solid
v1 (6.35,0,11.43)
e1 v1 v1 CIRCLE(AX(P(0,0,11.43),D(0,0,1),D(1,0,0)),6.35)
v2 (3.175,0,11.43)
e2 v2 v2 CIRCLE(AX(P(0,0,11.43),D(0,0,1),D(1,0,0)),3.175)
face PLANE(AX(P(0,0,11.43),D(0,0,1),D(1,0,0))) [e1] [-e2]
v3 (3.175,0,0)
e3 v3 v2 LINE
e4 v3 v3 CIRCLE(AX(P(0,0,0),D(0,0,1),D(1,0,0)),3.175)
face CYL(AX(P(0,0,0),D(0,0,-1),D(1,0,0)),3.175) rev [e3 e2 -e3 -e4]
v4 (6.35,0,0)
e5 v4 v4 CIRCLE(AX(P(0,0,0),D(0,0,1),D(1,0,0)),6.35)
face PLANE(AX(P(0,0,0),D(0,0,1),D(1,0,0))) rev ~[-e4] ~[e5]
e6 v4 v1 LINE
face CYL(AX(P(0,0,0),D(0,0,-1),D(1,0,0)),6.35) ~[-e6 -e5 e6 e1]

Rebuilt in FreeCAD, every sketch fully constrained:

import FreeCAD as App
import Part
import Sketcher

V = App.Vector
Q = App.Units.Quantity

doc = App.newDocument("Part")
params = doc.addObject("Spreadsheet::Sheet", "Params")
for row, (alias, value) in enumerate([
    ("sketch1_diameter", "0.5 in"),
    ("sketch1_diameter2", "0.25 in"),
    ("pad1_length", "0.45 in"),
], start=1):
    params.set(f"A{row}", alias)
    params.set(f"B{row}", "=" + value)
    params.setAlias(f"B{row}", alias)

body = doc.addObject("PartDesign::Body", "Body")

# Sketch on XY plane
sketch1 = body.newObject("Sketcher::SketchObject", "Sketch")
sketch1.AttachmentSupport = (doc.getObject("XY_Plane"), [""])
sketch1.MapMode = "FlatFace"
sketch1.addGeometry(Part.Circle(V(0, 0, 0), V(0, 0, 1), 6.35), False)
sketch1.addGeometry(Part.Circle(V(0, 0, 0), V(0, 0, 1), 3.175), False)
sketch1.addConstraint(Sketcher.Constraint("Coincident", 0, 3, -1, 1))
sketch1.addConstraint(Sketcher.Constraint("Coincident", 1, 3, -1, 1))
sketch1.addConstraint(Sketcher.Constraint("Diameter", 0, Q("0.5 in")))
sketch1.addConstraint(Sketcher.Constraint("Diameter", 1, Q("0.25 in")))
sketch1.setExpression("Constraints[2]", "Params.sketch1_diameter")
sketch1.setExpression("Constraints[3]", "Params.sketch1_diameter2")
pad1 = body.newObject("PartDesign::Pad", "Pad")
pad1.Profile = sketch1
pad1.setExpression("Length", "Params.pad1_length")

doc.recompute()
